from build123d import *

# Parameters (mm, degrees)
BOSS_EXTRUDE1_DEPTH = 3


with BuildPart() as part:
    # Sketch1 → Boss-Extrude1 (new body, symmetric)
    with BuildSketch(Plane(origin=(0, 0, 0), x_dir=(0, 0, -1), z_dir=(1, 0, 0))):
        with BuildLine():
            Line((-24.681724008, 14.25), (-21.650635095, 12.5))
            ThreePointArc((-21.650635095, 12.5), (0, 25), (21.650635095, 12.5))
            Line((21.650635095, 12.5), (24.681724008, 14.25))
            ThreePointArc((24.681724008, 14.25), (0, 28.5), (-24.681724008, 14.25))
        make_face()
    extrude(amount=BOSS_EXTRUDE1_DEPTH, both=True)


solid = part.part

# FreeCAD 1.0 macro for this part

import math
import FreeCAD as App
import Part
import Sketcher

V = App.Vector
Q = App.Units.Quantity

doc = App.newDocument("Part")
params = doc.addObject("Spreadsheet::Sheet", "Params")
for row, (alias, value) in enumerate([
    ("sketch1_radius", "25 mm"),
    ("sketch1_radius2", "28.5 mm"),
    ("pad1_length", "6 mm"),
], start=1):
    params.set(f"A{row}", alias)
    params.set(f"B{row}", "=" + value)
    params.setAlias(f"B{row}", alias)

body = doc.addObject("PartDesign::Body", "Body")

# Sketch on YZ plane
sketch1 = body.newObject("Sketcher::SketchObject", "Sketch")
sketch1.AttachmentSupport = (doc.getObject("YZ_Plane"), [""])
sketch1.MapMode = "FlatFace"
sketch1.addGeometry(Part.LineSegment(V(14.2, 24.7, 0), V(12.5, 21.7, 0)), False)
sketch1.addGeometry(Part.ArcOfCircle(Part.Circle(V(0, 0, 0), V(0, 0, 1), 25), math.radians(-60), math.radians(60)), False)
sketch1.addGeometry(Part.LineSegment(V(12.5, -21.7, 0), V(14.2, -24.7, 0)), False)
sketch1.addGeometry(Part.ArcOfCircle(Part.Circle(V(0, 0, 0), V(0, 0, 1), 28.5), math.radians(-60), math.radians(60)), False)
sketch1.addConstraint(Sketcher.Constraint("Coincident", 0, 2, 1, 2))
sketch1.addConstraint(Sketcher.Constraint("Coincident", 1, 1, 2, 1))
sketch1.addConstraint(Sketcher.Constraint("Coincident", 2, 2, 3, 1))
sketch1.addConstraint(Sketcher.Constraint("Coincident", 3, 2, 0, 1))
sketch1.addConstraint(Sketcher.Constraint("Coincident", 1, 3, -1, 1))
sketch1.addConstraint(Sketcher.Constraint("Coincident", 3, 3, -1, 1))
sketch1.addConstraint(Sketcher.Constraint("Vertical", 0, 2, 1, 1))
sketch1.addConstraint(Sketcher.Constraint("Vertical", 2, 2, 3, 2))
sketch1.addConstraint(Sketcher.Constraint("Radius", 1, 25.0))
sketch1.addConstraint(Sketcher.Constraint("Radius", 3, 28.5))
sketch1.addConstraint(Sketcher.Constraint("Angle", 0, Q("-120 deg")))
sketch1.addConstraint(Sketcher.Constraint("DistanceX", -1, 1, 0, 2, 12.5))
sketch1.setExpression("Constraints[8]", "Params.sketch1_radius")
sketch1.setExpression("Constraints[9]", "Params.sketch1_radius2")
pad1 = body.newObject("PartDesign::Pad", "Pad")
pad1.Profile = sketch1
pad1.setExpression("Length", "Params.pad1_length")
pad1.Midplane = True

doc.recompute()
